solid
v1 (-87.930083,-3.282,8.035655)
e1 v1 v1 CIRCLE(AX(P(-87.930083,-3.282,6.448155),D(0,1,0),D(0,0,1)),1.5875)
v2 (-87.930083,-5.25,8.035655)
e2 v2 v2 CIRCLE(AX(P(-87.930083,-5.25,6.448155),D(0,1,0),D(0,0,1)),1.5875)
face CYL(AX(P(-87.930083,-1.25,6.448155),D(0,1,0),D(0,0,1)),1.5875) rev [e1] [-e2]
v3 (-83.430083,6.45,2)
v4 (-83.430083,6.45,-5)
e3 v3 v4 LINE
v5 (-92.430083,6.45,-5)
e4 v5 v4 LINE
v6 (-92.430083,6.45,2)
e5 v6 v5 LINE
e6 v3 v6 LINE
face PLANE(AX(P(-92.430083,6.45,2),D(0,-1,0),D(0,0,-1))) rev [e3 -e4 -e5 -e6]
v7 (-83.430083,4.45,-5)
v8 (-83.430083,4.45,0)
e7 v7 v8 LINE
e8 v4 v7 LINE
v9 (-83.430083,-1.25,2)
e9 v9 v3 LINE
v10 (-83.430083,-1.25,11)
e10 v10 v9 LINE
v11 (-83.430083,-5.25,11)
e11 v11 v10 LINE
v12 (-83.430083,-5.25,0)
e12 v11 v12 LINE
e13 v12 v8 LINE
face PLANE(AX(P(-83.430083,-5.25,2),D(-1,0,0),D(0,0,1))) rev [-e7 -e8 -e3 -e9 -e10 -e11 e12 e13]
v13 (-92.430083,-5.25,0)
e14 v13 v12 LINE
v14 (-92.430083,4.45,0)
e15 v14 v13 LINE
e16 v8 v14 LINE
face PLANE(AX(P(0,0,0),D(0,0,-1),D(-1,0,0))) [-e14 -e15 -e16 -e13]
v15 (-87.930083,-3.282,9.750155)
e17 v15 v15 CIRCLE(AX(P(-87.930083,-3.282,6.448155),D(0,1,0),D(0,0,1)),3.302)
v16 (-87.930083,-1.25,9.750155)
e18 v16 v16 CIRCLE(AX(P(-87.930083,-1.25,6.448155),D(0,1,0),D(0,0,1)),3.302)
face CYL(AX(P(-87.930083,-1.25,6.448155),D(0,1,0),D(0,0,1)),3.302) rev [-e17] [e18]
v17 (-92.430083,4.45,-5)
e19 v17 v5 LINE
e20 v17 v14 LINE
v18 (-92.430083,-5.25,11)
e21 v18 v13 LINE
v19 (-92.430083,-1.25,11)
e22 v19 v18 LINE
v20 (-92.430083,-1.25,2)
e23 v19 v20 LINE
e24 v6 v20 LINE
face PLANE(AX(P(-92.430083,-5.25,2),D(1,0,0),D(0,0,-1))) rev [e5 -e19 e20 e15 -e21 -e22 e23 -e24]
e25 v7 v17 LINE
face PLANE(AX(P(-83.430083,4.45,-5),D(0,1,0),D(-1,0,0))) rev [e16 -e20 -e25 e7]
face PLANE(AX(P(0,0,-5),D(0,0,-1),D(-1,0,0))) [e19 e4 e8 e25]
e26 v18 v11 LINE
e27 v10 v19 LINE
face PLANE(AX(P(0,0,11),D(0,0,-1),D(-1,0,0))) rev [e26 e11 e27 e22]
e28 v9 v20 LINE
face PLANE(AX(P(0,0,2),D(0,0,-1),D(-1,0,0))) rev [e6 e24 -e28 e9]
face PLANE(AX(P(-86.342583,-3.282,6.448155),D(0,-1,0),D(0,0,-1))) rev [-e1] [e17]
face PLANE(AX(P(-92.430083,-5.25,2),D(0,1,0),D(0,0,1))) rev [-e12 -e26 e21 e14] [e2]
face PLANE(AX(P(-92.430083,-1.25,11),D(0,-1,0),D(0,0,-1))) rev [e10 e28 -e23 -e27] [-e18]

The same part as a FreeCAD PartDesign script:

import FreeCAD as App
import Part
import Sketcher
Q = App.Units.Quantity


def add_polygon(sketch, points):
    """Adds a closed chain of lines whose ends are joined by coincident constraints."""
    first, n = sketch.GeometryCount, len(points)
    for a, b in zip(points, points[1:] + points[:1]):
        sketch.addGeometry(Part.LineSegment(App.Vector(*a, 0), App.Vector(*b, 0)), False)
    for i in range(n):
        sketch.addConstraint(Sketcher.Constraint("Coincident", first + i, 2, first + (i + 1) % n, 1))

doc = App.newDocument("Part")
body = doc.addObject("PartDesign::Body", "Body")

# Sketch on XY plane
sketch1 = body.newObject("Sketcher::SketchObject", "Sketch")
sketch1.AttachmentSupport = (doc.getObject("XY_Plane"), [""])
sketch1.MapMode = "FlatFace"
add_polygon(sketch1, [(-92, 6), (-92, -5), (-83, -5), (-83, 6)])  # lines 0-3
sketch1.addConstraint([
    Sketcher.Constraint("Vertical", 0),
    Sketcher.Constraint("Horizontal", 1),
    Sketcher.Constraint("Vertical", 2),
    Sketcher.Constraint("Horizontal", 3),
    Sketcher.Constraint("DistanceX", 1, 1, 1, 2, Q("9 mm")),
    Sketcher.Constraint("DistanceY", 0, 2, 0, 1, Q("11.7 mm")),
    Sketcher.Constraint("DistanceY", 0, 2, -1, 1, Q("5.25 mm")),
    Sketcher.Constraint("DistanceX", 0, 2, -1, 1, Q("92.430083 mm")),
])
pad1 = body.newObject("PartDesign::Pad", "Pad")
pad1.Profile = sketch1
pad1.Length = 2

# Sketch on XY plane
sketch2 = body.newObject("Sketcher::SketchObject", "Sketch001")
sketch2.AttachmentSupport = (doc.getObject("XY_Plane"), [""])
sketch2.MapMode = "FlatFace"
add_polygon(sketch2, [(-83.4, 6.5), (-83.4, 4.5), (-92.4, 4.5), (-92.4, 6.5)])  # lines 0-3
sketch2.addConstraint([
    Sketcher.Constraint("Vertical", 0),
    Sketcher.Constraint("Horizontal", 1),
    Sketcher.Constraint("Vertical", 2),
    Sketcher.Constraint("Horizontal", 3),
    Sketcher.Constraint("DistanceX", 1, 2, 1, 1, Q("9 mm")),
    Sketcher.Constraint("DistanceY", 0, 2, 0, 1, Q("2 mm")),
    Sketcher.Constraint("DistanceY", -1, 1, 0, 2, Q("4.45 mm")),
    Sketcher.Constraint("DistanceX", 0, 2, -1, 1, Q("83.430083 mm")),
])
pad2 = body.newObject("PartDesign::Pad", "Pad001")
pad2.Profile = sketch2
pad2.Length = 5
pad2.Reversed = True

# Sketch on XY plane
sketch3 = body.newObject("Sketcher::SketchObject", "Sketch002")
sketch3.AttachmentSupport = (doc.getObject("XY_Plane"), [""])
sketch3.MapMode = "FlatFace"
sketch3.AttachmentOffset = App.Placement(App.Vector(0, 0, 2), App.Rotation())
add_polygon(sketch3, [(-92.4, -1.2), (-92.4, -5.2), (-83.4, -5.2), (-83.4, -1.2)])  # lines 0-3
sketch3.addConstraint([
    Sketcher.Constraint("Vertical", 0),
    Sketcher.Constraint("Horizontal", 1),
    Sketcher.Constraint("Vertical", 2),
    Sketcher.Constraint("Horizontal", 3),
    Sketcher.Constraint("DistanceX", 1, 1, 1, 2, Q("9 mm")),
    Sketcher.Constraint("DistanceY", 0, 2, 0, 1, Q("4 mm")),
    Sketcher.Constraint("DistanceY", 0, 2, -1, 1, Q("5.25 mm")),
    Sketcher.Constraint("DistanceX", 0, 2, -1, 1, Q("92.430083 mm")),
])
pad3 = body.newObject("PartDesign::Pad", "Pad002")
pad3.Profile = sketch3
pad3.Length = 9

# Sketch on XZ plane
sketch4 = body.newObject("Sketcher::SketchObject", "Sketch003")
sketch4.AttachmentSupport = (doc.getObject("XZ_Plane"), [""])
sketch4.MapMode = "FlatFace"
sketch4.AttachmentOffset = App.Placement(App.Vector(0, 0, 1.25), App.Rotation())
sketch4.addGeometry(Part.Circle(App.Vector(-87.9, 6.4, 0), App.Vector(0, 0, 1), 1.6), False)
sketch4.addConstraint([
    Sketcher.Constraint("Diameter", 0, Q("3.175 mm")),
    Sketcher.Constraint("DistanceX", 0, 3, -1, 1, Q("87.930083 mm")),
    Sketcher.Constraint("DistanceY", -1, 1, 0, 3, Q("6.448155 mm")),
])
doc.recompute()
hole = body.newObject("PartDesign::Hole", "Hole")
hole.Profile = sketch4
hole.ThreadType = "None"
hole.Diameter = 3.175
hole.DepthType = "ThroughAll"
hole.HoleCutType = "Counterbore"
hole.HoleCutDiameter = 6.604
hole.HoleCutDepth = 2.032
hole.Reversed = True

doc.recompute()
